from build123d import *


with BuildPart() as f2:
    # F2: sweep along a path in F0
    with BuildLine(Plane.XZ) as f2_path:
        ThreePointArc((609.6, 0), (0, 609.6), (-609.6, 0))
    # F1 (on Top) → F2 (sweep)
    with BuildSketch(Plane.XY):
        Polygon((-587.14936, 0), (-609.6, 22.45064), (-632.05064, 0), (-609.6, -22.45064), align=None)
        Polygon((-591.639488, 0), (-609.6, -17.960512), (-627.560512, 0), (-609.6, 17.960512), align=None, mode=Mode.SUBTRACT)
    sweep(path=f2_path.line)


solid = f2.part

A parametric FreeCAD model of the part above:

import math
import FreeCAD as App
import Part
import Sketcher
Q = App.Units.Quantity

doc = App.newDocument("Part")
body = doc.addObject("PartDesign::Body", "Body")

# Sketch on XY plane
sketch1 = body.newObject("Sketcher::SketchObject", "Sketch")
sketch1.AttachmentSupport = (doc.getObject("XY_Plane"), [""])
sketch1.MapMode = "FlatFace"
sketch1.addGeometry([
    Part.LineSegment(App.Vector(-587, 0, 0), App.Vector(-610, 22, 0)),  # 0
    Part.LineSegment(App.Vector(-610, 22, 0), App.Vector(-632, 0, 0)),  # 1
    Part.LineSegment(App.Vector(-632, 0, 0), App.Vector(-610, -22, 0)),  # 2
    Part.LineSegment(App.Vector(-610, -22, 0), App.Vector(-587, 0, 0)),  # 3
    Part.LineSegment(App.Vector(-610, 18, 0), App.Vector(-592, 0, 0)),  # 4
    Part.LineSegment(App.Vector(-592, 0, 0), App.Vector(-610, -18, 0)),  # 5
    Part.LineSegment(App.Vector(-610, -18, 0), App.Vector(-628, 0, 0)),  # 6
    Part.LineSegment(App.Vector(-628, 0, 0), App.Vector(-610, 18, 0)),  # 7
], False)
sketch1.addConstraint([
    Sketcher.Constraint("Coincident", 0, 2, 1, 1),
    Sketcher.Constraint("Coincident", 1, 2, 2, 1),
    Sketcher.Constraint("Coincident", 2, 2, 3, 1),
    Sketcher.Constraint("Coincident", 3, 2, 0, 1),
    Sketcher.Constraint("Coincident", 4, 2, 5, 1),
    Sketcher.Constraint("Coincident", 5, 2, 6, 1),
    Sketcher.Constraint("Coincident", 6, 2, 7, 1),
    Sketcher.Constraint("Coincident", 7, 2, 4, 1),
    Sketcher.Constraint("Symmetric", 0, 2, 2, 2, -1),
    Sketcher.Constraint("Symmetric", 5, 2, 7, 2, -1),
    Sketcher.Constraint("PointOnObject", 1, 2, -1),
    Sketcher.Constraint("PointOnObject", 3, 2, -1),
    Sketcher.Constraint("PointOnObject", 4, 2, -1),
    Sketcher.Constraint("PointOnObject", 6, 2, -1),
    Sketcher.Constraint("Perpendicular", 0, 1),
    Sketcher.Constraint("Perpendicular", 1, 2),
    Sketcher.Constraint("Perpendicular", 3, 4),
    Sketcher.Constraint("Perpendicular", 5, 6),
    Sketcher.Constraint("Vertical", 2, 2, 5, 2),
    Sketcher.Constraint("Distance", 4, Q("1 in")),
    Sketcher.Constraint("DistanceX", 0, 2, -1, 1, Q("24 in")),
    Sketcher.Constraint("Distance", 0, Q("1.25 in")),
])

# Sketch on XZ plane
sketch2 = body.newObject("Sketcher::SketchObject", "Sketch001")
sketch2.AttachmentSupport = (doc.getObject("XZ_Plane"), [""])
sketch2.MapMode = "FlatFace"
sketch2.addGeometry(Part.ArcOfCircle(Part.Circle(App.Vector(0, 0, 0), App.Vector(0, 0, 1), 610), math.radians(0), math.radians(180)), False)
sketch2.addConstraint([
    Sketcher.Constraint("Coincident", 0, 3, -1, 1),
    Sketcher.Constraint("PointOnObject", 0, 1, -1),
    Sketcher.Constraint("PointOnObject", 0, 2, -1),
    Sketcher.Constraint("Radius", 0, Q("24 in")),
])
doc.recompute()

additivepipe = body.newObject("PartDesign::AdditivePipe", "AdditivePipe")
additivepipe.Profile = sketch1
additivepipe.Spine = (sketch2, ["Edge1"])

doc.recompute()
